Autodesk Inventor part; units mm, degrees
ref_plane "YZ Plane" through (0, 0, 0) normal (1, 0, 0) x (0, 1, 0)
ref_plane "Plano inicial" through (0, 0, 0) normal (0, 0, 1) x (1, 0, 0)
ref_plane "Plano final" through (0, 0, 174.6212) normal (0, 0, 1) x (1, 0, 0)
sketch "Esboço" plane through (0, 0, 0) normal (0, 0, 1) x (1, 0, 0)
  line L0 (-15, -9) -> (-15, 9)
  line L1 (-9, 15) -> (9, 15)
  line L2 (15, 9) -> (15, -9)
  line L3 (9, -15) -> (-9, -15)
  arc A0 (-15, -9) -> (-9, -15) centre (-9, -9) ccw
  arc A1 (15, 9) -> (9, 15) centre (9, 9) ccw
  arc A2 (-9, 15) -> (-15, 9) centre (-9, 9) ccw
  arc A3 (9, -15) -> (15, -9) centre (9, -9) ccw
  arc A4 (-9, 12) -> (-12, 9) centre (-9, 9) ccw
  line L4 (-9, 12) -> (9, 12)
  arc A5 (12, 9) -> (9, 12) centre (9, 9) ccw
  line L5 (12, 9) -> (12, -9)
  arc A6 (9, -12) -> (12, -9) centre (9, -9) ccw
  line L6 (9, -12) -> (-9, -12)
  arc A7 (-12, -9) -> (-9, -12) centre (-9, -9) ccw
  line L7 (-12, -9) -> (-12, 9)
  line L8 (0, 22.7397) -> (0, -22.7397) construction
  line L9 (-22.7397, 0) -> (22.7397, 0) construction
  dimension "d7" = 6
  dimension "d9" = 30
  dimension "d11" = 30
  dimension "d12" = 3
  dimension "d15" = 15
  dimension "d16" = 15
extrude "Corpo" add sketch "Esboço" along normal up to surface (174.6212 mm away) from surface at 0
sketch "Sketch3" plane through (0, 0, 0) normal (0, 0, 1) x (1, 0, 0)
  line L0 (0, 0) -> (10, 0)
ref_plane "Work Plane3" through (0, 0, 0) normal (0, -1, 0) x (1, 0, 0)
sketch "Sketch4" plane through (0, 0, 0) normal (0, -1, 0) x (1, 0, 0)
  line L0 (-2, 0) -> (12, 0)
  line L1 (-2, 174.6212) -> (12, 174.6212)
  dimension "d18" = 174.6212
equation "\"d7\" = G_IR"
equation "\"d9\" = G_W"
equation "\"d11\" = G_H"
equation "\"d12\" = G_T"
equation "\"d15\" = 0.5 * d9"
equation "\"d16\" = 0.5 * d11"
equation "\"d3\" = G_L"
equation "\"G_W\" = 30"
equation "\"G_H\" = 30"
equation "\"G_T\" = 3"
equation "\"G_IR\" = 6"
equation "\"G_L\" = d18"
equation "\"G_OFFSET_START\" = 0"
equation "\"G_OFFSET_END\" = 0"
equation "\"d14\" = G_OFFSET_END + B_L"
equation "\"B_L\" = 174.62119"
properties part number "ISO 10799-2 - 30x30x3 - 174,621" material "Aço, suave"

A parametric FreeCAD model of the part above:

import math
import FreeCAD as App
import Part
import Sketcher
from FreeCAD import Vector
Q = App.Units.Quantity

doc = App.newDocument("Part")
body = doc.addObject("PartDesign::Body", "Body")

# Sketch on XY plane
sketch1 = body.newObject("Sketcher::SketchObject", "Sketch")
sketch1.AttachmentSupport = (doc.getObject("XY_Plane"), [""])
sketch1.MapMode = "FlatFace"
sketch1.addGeometry([
    Part.LineSegment(Vector(-15, 9, 0), Vector(-15, -9, 0)),  # 0
    Part.ArcOfCircle(Part.Circle(Vector(-9, -9, 0), Vector(0, 0, 1), 6), math.radians(180), math.radians(270)),  # 1
    Part.LineSegment(Vector(-9, -15, 0), Vector(9, -15, 0)),  # 2
    Part.ArcOfCircle(Part.Circle(Vector(9, -9, 0), Vector(0, 0, 1), 6), math.radians(-90), math.radians(0)),  # 3
    Part.LineSegment(Vector(15, -9, 0), Vector(15, 9, 0)),  # 4
    Part.ArcOfCircle(Part.Circle(Vector(9, 9, 0), Vector(0, 0, 1), 6), math.radians(0), math.radians(90)),  # 5
    Part.LineSegment(Vector(9, 15, 0), Vector(-9, 15, 0)),  # 6
    Part.ArcOfCircle(Part.Circle(Vector(-9, 9, 0), Vector(0, 0, 1), 6), math.radians(90), math.radians(180)),  # 7
    Part.ArcOfCircle(Part.Circle(Vector(-9, 9, 0), Vector(0, 0, 1), 3), math.radians(90), math.radians(180)),  # 8
    Part.LineSegment(Vector(-9, 12, 0), Vector(9, 12, 0)),  # 9
    Part.ArcOfCircle(Part.Circle(Vector(9, 9, 0), Vector(0, 0, 1), 3), math.radians(0), math.radians(90)),  # 10
    Part.LineSegment(Vector(12, 9, 0), Vector(12, -9, 0)),  # 11
    Part.ArcOfCircle(Part.Circle(Vector(9, -9, 0), Vector(0, 0, 1), 3), math.radians(-90), math.radians(0)),  # 12
    Part.LineSegment(Vector(9, -12, 0), Vector(-9, -12, 0)),  # 13
    Part.ArcOfCircle(Part.Circle(Vector(-9, -9, 0), Vector(0, 0, 1), 3), math.radians(180), math.radians(270)),  # 14
    Part.LineSegment(Vector(-12, -9, 0), Vector(-12, 9, 0)),  # 15
], False)
sketch1.addConstraint([
    Sketcher.Constraint("Tangent", 0, 2, 1, 1),
    Sketcher.Constraint("Tangent", 1, 2, 2, 1),
    Sketcher.Constraint("Tangent", 2, 2, 3, 1),
    Sketcher.Constraint("Tangent", 3, 2, 4, 1),
    Sketcher.Constraint("Tangent", 4, 2, 5, 1),
    Sketcher.Constraint("Tangent", 5, 2, 6, 1),
    Sketcher.Constraint("Tangent", 6, 2, 7, 1),
    Sketcher.Constraint("Tangent", 7, 2, 0, 1),
    Sketcher.Constraint("Tangent", 8, 1, 9, 1),
    Sketcher.Constraint("Tangent", 9, 2, 10, 2),
    Sketcher.Constraint("Tangent", 10, 1, 11, 1),
    Sketcher.Constraint("Tangent", 11, 2, 12, 2),
    Sketcher.Constraint("Tangent", 12, 1, 13, 1),
    Sketcher.Constraint("Tangent", 13, 2, 14, 2),
    Sketcher.Constraint("Tangent", 14, 1, 15, 1),
    Sketcher.Constraint("Tangent", 15, 2, 8, 2),
    Sketcher.Constraint("Vertical", 0),
    Sketcher.Constraint("Horizontal", 2),
    Sketcher.Constraint("Vertical", 4),
    Sketcher.Constraint("Horizontal", 6),
    Sketcher.Constraint("Horizontal", 9),
    Sketcher.Constraint("Vertical", 11),
    Sketcher.Constraint("Horizontal", 13),
    Sketcher.Constraint("Vertical", 15),
    Sketcher.Constraint("Coincident", 8, 3, 7, 3),
    Sketcher.Constraint("Coincident", 10, 3, 5, 3),
    Sketcher.Constraint("Coincident", 12, 3, 3, 3),
    Sketcher.Constraint("Equal", 1, 3),
    Sketcher.Constraint("Equal", 3, 5),
    Sketcher.Constraint("Equal", 5, 7),
    Sketcher.Constraint("Equal", 12, 14),
    Sketcher.Constraint("Symmetric", 1, 3, 5, 3, -1, 1),
    Sketcher.Constraint("Equal", 13, 0),
    Sketcher.Constraint("Radius", 1, Q("6 mm")),
    Sketcher.Constraint("Radius", 8, Q("3 mm")),
    Sketcher.Constraint("DistanceX", 0, 2, -1, 1, Q("15 mm")),
])
pad1 = body.newObject("PartDesign::Pad", "Pad")
pad1.Profile = sketch1
pad1.Length = 174.6212

doc.recompute()
